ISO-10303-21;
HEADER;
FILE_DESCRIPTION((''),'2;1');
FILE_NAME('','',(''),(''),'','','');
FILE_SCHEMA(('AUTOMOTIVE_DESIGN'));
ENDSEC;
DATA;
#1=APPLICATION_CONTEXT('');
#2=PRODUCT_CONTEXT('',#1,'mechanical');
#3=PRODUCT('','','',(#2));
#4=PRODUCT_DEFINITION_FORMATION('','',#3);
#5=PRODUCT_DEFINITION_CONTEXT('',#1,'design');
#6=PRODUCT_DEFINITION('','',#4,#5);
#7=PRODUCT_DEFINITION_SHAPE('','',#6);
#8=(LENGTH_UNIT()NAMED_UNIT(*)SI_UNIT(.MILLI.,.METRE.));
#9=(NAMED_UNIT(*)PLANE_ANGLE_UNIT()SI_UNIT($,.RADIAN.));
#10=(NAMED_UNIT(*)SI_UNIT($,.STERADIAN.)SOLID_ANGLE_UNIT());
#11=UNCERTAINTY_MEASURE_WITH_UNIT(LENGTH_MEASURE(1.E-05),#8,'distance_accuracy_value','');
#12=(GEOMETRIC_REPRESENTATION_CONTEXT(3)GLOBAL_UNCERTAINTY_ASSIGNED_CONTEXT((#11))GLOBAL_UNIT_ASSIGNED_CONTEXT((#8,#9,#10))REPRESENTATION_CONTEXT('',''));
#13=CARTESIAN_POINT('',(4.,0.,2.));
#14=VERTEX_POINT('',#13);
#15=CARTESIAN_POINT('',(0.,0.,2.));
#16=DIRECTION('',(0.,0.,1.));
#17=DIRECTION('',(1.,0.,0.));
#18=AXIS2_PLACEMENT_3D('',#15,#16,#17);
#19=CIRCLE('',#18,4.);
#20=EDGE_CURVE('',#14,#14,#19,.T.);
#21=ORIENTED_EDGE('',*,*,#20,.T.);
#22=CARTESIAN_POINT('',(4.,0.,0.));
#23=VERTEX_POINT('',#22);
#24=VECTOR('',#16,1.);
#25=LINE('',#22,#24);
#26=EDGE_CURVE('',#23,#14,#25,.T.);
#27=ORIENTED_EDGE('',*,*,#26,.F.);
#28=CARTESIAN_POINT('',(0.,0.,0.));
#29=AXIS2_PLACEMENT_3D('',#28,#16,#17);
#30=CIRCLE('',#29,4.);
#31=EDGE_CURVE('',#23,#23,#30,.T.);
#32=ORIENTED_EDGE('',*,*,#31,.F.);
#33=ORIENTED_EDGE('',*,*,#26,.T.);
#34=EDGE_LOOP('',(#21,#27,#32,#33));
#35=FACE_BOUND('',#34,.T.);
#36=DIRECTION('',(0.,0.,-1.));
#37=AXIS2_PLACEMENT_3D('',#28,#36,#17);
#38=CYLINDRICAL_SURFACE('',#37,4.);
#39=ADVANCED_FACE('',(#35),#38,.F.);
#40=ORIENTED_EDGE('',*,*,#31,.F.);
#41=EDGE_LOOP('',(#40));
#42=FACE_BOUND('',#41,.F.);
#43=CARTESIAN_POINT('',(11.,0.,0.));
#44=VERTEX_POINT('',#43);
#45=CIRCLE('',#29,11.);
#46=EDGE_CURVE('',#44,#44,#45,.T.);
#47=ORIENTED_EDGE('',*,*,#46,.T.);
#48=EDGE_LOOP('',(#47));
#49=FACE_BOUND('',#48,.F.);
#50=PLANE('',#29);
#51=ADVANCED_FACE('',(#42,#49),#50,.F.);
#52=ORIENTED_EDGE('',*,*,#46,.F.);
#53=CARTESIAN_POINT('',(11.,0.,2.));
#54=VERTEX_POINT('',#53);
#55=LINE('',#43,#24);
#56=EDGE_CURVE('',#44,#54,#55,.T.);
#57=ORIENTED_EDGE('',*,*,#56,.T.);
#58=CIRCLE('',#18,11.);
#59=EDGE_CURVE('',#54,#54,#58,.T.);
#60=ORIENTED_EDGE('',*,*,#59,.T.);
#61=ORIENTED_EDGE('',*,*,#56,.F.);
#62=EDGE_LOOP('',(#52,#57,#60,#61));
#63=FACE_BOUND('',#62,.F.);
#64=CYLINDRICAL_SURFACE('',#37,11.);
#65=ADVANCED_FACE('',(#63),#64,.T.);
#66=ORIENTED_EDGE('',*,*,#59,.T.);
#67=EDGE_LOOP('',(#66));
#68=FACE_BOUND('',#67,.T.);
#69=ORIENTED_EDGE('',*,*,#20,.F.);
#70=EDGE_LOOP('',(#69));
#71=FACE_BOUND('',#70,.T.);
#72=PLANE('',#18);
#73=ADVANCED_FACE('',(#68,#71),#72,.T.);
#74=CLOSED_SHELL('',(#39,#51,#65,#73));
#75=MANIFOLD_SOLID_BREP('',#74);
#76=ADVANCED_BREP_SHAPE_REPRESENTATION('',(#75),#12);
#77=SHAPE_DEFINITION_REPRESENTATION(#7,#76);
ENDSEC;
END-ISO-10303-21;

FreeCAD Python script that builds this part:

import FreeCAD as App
import Part
import Sketcher
Q = App.Units.Quantity

doc = App.newDocument("Part")
body = doc.addObject("PartDesign::Body", "Body")

# Sketch on XY plane
sketch1 = doc.addObject("Sketcher::SketchObject", "Sketch")
body.addObject(sketch1)
sketch1.AttachmentSupport = (doc.XY_Plane, [""])
sketch1.MapMode = "FlatFace"
sketch1.addGeometry([
    Part.Circle(App.Vector(0, 0, 0), App.Vector(0, 0, 1), 11),
    Part.Circle(App.Vector(0, 0, 0), App.Vector(0, 0, 1), 4),
], False)
sketch1.addConstraint([
    Sketcher.Constraint("Coincident", 0, 3, -1, 1),
    Sketcher.Constraint("Coincident", 1, 3, -1, 1),
    Sketcher.Constraint("Diameter", 0, Q("22 mm")),
    Sketcher.Constraint("Diameter", 1, Q("8 mm")),
])
pad1 = doc.addObject("PartDesign::Pad", "Pad")
body.addObject(pad1)
pad1.Profile = sketch1
pad1.Length = 2

doc.recompute()
